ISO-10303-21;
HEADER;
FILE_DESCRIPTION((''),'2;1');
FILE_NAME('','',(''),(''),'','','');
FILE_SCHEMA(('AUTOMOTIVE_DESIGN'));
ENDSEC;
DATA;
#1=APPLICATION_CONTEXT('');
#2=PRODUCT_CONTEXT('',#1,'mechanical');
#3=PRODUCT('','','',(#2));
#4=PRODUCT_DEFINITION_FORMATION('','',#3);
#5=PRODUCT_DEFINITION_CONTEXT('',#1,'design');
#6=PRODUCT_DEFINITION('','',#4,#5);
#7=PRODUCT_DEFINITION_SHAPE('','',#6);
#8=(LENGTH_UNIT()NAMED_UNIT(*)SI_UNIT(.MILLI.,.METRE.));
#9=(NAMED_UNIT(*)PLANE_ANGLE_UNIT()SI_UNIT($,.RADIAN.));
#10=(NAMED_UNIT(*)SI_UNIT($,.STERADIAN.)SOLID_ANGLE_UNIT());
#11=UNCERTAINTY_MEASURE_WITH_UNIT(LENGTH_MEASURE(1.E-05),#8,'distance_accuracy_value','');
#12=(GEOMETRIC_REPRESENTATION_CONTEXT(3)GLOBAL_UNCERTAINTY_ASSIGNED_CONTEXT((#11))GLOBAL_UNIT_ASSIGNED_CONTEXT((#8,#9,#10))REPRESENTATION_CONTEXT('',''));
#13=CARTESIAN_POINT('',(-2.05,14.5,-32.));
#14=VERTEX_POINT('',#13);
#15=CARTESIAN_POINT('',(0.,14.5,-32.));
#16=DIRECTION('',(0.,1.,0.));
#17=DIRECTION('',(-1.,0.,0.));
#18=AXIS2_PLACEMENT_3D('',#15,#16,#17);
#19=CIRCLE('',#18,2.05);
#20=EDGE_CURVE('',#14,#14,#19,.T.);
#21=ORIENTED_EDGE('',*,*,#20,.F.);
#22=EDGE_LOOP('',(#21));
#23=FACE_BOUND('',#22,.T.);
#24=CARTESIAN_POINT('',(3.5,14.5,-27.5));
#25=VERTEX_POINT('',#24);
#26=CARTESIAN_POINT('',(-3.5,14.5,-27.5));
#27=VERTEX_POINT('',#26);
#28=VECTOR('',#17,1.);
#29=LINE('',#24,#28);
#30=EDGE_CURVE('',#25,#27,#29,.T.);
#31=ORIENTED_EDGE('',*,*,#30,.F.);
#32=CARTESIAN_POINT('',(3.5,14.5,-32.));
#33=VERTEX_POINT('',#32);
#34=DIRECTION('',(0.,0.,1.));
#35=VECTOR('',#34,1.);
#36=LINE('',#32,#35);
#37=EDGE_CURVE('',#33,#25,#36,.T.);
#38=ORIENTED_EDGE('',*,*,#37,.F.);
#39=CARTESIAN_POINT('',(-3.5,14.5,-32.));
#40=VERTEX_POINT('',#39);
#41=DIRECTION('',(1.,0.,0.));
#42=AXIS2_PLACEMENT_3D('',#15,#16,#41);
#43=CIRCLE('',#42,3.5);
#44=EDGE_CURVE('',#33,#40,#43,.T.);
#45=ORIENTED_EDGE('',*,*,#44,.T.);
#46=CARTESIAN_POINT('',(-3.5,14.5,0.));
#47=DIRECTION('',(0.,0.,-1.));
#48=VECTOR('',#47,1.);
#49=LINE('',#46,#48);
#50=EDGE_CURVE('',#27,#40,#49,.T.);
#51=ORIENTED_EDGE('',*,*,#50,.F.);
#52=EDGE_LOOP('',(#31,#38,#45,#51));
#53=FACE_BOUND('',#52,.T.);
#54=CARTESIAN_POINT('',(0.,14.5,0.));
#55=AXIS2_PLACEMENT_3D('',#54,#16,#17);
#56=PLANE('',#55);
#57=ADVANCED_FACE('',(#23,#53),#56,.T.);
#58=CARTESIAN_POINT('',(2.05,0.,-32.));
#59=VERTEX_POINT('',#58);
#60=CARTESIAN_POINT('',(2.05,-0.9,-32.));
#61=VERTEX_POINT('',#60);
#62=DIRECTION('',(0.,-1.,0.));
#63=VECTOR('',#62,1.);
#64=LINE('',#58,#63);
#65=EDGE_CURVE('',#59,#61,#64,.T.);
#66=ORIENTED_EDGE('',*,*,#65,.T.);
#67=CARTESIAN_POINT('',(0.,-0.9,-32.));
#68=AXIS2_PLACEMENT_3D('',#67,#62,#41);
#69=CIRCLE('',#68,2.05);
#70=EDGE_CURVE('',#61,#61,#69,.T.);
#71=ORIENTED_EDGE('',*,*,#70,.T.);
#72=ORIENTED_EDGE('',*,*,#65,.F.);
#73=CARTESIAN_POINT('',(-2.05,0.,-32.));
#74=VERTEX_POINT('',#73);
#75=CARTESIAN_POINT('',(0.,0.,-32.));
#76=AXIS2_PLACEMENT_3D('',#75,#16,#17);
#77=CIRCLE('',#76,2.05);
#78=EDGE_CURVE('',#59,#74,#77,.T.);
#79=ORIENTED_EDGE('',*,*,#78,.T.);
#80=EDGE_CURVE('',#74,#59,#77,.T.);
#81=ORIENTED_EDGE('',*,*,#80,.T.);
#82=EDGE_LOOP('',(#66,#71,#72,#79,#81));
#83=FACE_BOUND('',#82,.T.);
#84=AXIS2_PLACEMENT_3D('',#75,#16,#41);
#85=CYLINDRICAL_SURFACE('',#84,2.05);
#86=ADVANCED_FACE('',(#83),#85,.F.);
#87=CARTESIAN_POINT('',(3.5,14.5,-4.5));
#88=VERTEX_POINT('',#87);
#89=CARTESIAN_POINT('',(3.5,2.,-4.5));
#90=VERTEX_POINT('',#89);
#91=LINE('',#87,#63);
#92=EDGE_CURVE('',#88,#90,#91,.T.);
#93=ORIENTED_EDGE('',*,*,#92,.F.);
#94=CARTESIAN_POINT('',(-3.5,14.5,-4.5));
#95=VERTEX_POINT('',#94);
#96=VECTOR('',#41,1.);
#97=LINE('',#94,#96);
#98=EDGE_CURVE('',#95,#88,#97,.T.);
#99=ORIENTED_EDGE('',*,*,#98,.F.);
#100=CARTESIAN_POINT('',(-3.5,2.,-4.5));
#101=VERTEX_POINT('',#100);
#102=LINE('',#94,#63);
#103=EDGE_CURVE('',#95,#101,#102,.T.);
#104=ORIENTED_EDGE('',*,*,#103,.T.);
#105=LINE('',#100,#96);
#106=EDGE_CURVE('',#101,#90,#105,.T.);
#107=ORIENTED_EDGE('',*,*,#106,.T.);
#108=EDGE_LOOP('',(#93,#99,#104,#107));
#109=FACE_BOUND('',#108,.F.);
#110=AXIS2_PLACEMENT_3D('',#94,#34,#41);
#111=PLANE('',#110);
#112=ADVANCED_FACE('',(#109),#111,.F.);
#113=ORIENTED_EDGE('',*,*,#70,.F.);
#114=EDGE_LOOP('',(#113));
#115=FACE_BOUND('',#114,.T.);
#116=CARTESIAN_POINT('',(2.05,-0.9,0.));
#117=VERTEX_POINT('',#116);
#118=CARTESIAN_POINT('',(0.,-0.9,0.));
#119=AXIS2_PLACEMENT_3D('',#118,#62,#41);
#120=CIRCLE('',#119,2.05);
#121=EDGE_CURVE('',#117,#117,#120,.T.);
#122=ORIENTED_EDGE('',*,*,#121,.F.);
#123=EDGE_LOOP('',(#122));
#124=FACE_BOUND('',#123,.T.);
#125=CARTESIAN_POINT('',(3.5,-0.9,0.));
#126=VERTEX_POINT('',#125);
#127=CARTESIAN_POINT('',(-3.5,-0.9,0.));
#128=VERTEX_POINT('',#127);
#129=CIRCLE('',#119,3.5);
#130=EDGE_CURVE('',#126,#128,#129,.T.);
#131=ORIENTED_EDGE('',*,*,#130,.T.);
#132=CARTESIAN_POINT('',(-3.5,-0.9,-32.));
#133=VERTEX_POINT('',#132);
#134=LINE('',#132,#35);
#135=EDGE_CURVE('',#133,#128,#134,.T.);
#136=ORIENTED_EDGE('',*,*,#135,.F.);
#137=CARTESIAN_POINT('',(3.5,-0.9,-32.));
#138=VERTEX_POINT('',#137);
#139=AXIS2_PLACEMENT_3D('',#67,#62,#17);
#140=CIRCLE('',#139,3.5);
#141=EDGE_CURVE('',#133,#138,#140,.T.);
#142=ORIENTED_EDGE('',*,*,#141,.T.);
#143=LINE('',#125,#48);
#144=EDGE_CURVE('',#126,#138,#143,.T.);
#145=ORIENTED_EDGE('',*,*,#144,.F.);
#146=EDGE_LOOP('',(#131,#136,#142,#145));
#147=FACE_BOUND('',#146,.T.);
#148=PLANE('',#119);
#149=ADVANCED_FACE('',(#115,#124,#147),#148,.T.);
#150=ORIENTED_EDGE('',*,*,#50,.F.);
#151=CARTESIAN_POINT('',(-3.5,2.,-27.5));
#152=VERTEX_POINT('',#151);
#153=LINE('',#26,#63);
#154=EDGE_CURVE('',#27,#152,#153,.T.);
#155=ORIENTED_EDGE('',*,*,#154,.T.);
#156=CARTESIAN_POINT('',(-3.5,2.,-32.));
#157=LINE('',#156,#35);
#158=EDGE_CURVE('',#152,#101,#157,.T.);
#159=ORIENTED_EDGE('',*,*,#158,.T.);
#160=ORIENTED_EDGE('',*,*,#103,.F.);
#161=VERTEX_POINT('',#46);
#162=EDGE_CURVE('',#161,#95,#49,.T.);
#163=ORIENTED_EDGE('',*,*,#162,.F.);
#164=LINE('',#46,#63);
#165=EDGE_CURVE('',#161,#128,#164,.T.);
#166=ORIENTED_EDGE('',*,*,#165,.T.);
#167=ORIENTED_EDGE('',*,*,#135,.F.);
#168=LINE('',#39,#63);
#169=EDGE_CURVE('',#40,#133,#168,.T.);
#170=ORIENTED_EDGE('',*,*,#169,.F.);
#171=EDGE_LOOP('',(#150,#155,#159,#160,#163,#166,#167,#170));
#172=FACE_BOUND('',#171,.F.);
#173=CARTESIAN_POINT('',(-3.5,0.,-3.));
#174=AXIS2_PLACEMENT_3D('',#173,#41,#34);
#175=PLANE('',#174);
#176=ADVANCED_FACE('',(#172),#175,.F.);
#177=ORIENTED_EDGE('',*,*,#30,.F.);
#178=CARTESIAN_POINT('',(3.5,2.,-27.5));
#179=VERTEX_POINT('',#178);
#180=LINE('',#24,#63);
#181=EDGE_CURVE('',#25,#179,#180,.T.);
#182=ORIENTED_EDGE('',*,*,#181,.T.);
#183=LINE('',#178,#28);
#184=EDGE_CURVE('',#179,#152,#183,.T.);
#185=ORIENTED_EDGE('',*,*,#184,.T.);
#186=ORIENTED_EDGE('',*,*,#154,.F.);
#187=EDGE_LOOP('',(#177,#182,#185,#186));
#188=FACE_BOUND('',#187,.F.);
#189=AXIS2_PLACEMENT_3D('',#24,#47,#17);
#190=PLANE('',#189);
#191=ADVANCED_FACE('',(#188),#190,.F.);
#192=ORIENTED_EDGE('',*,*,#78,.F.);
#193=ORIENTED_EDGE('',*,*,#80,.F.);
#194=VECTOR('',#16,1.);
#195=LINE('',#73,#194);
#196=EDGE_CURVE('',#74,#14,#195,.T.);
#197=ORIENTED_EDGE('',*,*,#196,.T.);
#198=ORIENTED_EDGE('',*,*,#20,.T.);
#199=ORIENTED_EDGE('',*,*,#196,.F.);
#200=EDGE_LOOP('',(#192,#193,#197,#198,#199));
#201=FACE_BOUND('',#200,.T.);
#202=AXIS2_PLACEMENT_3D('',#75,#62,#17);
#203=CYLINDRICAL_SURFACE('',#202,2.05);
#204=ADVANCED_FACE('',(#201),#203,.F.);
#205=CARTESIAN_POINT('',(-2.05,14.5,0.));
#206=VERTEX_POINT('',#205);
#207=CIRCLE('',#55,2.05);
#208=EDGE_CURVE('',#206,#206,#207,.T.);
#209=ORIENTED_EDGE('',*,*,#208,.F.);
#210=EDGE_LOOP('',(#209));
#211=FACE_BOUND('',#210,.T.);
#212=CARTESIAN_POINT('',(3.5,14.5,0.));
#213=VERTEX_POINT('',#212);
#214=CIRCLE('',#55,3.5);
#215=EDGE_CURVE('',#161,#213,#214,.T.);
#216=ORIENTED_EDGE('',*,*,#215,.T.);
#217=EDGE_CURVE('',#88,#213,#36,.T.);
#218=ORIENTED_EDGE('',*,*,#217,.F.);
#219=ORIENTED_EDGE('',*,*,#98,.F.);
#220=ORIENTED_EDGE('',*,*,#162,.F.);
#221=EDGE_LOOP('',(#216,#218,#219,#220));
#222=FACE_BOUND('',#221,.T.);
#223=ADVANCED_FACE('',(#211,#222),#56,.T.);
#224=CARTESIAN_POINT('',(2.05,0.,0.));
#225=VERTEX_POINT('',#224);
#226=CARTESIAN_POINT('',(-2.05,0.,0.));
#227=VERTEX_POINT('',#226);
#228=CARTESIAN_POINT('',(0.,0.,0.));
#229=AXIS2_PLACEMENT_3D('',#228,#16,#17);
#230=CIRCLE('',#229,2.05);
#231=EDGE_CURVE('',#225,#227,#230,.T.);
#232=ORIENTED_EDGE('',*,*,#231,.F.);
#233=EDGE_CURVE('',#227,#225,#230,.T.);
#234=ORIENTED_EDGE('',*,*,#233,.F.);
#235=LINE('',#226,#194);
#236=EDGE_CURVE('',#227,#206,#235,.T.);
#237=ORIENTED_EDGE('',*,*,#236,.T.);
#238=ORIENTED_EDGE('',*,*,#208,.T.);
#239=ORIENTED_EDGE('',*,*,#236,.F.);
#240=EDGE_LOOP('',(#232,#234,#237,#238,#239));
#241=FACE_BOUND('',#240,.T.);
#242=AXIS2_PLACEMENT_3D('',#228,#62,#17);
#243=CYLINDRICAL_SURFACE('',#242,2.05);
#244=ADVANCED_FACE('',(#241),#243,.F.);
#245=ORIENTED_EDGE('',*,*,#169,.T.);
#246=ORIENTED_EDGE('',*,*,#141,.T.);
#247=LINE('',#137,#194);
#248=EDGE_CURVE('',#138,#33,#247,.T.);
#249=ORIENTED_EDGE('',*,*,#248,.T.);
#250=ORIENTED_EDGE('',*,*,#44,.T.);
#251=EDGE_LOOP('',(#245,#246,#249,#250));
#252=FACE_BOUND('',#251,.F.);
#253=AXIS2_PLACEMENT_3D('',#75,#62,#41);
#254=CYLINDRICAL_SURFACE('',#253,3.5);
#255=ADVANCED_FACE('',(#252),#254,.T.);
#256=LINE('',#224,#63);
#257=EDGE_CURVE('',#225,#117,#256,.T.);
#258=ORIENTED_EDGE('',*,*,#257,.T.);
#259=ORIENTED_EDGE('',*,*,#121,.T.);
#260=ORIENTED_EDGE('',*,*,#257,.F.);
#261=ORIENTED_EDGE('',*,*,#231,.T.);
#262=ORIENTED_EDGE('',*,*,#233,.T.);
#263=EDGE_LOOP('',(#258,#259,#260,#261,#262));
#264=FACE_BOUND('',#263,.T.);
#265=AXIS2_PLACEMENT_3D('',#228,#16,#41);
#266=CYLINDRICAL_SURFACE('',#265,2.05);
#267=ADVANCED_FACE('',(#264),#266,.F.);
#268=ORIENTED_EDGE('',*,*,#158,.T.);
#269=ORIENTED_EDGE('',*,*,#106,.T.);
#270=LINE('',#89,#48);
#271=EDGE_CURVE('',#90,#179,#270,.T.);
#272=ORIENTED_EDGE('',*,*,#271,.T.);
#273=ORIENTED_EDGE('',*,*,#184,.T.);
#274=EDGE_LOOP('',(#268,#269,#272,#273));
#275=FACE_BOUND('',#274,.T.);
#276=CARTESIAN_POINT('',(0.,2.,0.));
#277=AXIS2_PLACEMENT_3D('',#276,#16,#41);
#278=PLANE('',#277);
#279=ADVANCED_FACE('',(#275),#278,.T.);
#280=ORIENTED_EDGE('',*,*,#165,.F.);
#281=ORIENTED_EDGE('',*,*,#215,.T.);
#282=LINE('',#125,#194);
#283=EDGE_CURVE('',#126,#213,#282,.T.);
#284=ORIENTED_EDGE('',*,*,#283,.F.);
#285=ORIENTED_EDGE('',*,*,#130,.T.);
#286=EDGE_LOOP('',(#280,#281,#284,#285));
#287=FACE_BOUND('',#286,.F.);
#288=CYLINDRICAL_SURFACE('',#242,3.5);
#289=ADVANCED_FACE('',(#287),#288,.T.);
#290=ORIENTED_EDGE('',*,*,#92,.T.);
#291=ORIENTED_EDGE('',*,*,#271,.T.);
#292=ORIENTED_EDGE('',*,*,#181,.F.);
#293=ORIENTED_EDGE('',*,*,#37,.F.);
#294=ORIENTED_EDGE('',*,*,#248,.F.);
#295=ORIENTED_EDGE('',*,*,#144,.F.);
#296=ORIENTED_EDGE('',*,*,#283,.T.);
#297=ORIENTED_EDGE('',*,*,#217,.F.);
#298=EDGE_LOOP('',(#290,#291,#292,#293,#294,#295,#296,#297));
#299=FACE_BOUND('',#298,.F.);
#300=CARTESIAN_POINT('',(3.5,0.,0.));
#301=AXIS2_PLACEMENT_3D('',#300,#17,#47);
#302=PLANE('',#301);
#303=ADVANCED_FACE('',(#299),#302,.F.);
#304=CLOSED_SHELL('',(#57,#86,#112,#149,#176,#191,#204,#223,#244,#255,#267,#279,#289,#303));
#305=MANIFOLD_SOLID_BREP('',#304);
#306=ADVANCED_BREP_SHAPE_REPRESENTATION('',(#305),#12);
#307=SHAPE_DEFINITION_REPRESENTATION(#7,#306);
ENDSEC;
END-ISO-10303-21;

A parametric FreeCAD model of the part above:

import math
import FreeCAD as App
import Part
import Sketcher
from FreeCAD import Vector


def add_polygon(sketch, points):
    """Adds a closed chain of lines whose ends are joined by coincident constraints."""
    first, n = sketch.GeometryCount, len(points)
    for a, b in zip(points, points[1:] + points[:1]):
        sketch.addGeometry(Part.LineSegment(App.Vector(*a, 0), App.Vector(*b, 0)), False)
    for i in range(n):
        sketch.addConstraint(Sketcher.Constraint("Coincident", first + i, 2, first + (i + 1) % n, 1))

doc = App.newDocument("Part")
params = doc.addObject("Spreadsheet::Sheet", "Params")
for row, (alias, value) in enumerate([
    ("sketch1_diameter", "4.1 mm"),
    ("sketch1_radius", "3.5 mm"),
    ("sketch1_height", "32 mm"),
    ("pad1_length", "14.5 mm"),
    ("sketch2_width", "7 mm"),
    ("sketch2_height", "23 mm"),
    ("pocket1_length", "12.5 mm"),
    ("sketch3_diameter", "4.1 mm"),
    ("sketch3_radius", "3.5 mm"),
    ("sketch3_height", "32 mm"),
    ("pad2_length", "0.9 mm"),
], start=1):
    params.set(f"A{row}", alias)
    params.set(f"B{row}", "=" + value)
    params.setAlias(f"B{row}", alias)

body = doc.addObject("PartDesign::Body", "Body")

# Sketch on XZ plane
sketch1 = body.newObject("Sketcher::SketchObject", "Sketch")
sketch1.AttachmentSupport = (doc.getObject("XZ_Plane"), [""])
sketch1.MapMode = "FlatFace"
sketch1.addGeometry(Part.ArcOfCircle(Part.Circle(Vector(0, 0, 0), Vector(0, 0, 1), 3.5), math.radians(0), math.radians(180)), False)
sketch1.addGeometry(Part.LineSegment(Vector(3.5, 0, 0), Vector(3.5, -32, 0)), False)
sketch1.addGeometry(Part.ArcOfCircle(Part.Circle(Vector(0, -32, 0), Vector(0, 0, 1), 3.5), math.radians(180), math.radians(360)), False)
sketch1.addGeometry(Part.LineSegment(Vector(-3.5, -32, 0), Vector(-3.5, 0, 0)), False)
sketch1.addGeometry(Part.Circle(Vector(0, 0, 0), Vector(0, 0, 1), 2.05), False)
sketch1.addGeometry(Part.Circle(Vector(0, -32, 0), Vector(0, 0, 1), 2.05), False)
sketch1.addConstraint(Sketcher.Constraint("Tangent", 0, 1, 1, 1))
sketch1.addConstraint(Sketcher.Constraint("Tangent", 1, 2, 2, 2))
sketch1.addConstraint(Sketcher.Constraint("Tangent", 2, 1, 3, 1))
sketch1.addConstraint(Sketcher.Constraint("Tangent", 3, 2, 0, 2))
sketch1.addConstraint(Sketcher.Constraint("Vertical", 1))
sketch1.addConstraint(Sketcher.Constraint("Vertical", 3))
sketch1.addConstraint(Sketcher.Constraint("Coincident", 0, 3, -1, 1))
sketch1.addConstraint(Sketcher.Constraint("Coincident", 4, 3, -1, 1))
sketch1.addConstraint(Sketcher.Constraint("Coincident", 5, 3, 2, 3))
sketch1.addConstraint(Sketcher.Constraint("Equal", 4, 5))
sketch1.addConstraint(Sketcher.Constraint("Diameter", 4, 4.1))
sketch1.addConstraint(Sketcher.Constraint("Radius", 0, 3.5))
sketch1.addConstraint(Sketcher.Constraint("DistanceY", 1, 2, 1, 1, 32.0))
sketch1.setExpression("Constraints[10]", "Params.sketch1_diameter")
sketch1.setExpression("Constraints[11]", "Params.sketch1_radius")
sketch1.setExpression("Constraints[12]", "Params.sketch1_height")
pad1 = body.newObject("PartDesign::Pad", "Pad")
pad1.Profile = sketch1
pad1.setExpression("Length", "Params.pad1_length")
pad1.Reversed = True

# Sketch on XZ plane
sketch2 = body.newObject("Sketcher::SketchObject", "Sketch001")
sketch2.AttachmentSupport = (doc.getObject("XZ_Plane"), [""])
sketch2.MapMode = "FlatFace"
sketch2.AttachmentOffset = App.Placement(Vector(0, 0, -14.5), App.Rotation())
add_polygon(sketch2, [(3.5, -27.5), (-3.5, -27.5), (-3.5, -4.5), (3.5, -4.5)])  # lines 0-3
sketch2.addConstraint(Sketcher.Constraint("Horizontal", 0))
sketch2.addConstraint(Sketcher.Constraint("Vertical", 1))
sketch2.addConstraint(Sketcher.Constraint("Horizontal", 2))
sketch2.addConstraint(Sketcher.Constraint("Vertical", 3))
sketch2.addConstraint(Sketcher.Constraint("DistanceX", 0, 2, 0, 1, 7.0))
sketch2.addConstraint(Sketcher.Constraint("DistanceY", 1, 1, 1, 2, 23.0))
sketch2.addConstraint(Sketcher.Constraint("DistanceX", 0, 2, -1, 1, 3.5))
sketch2.addConstraint(Sketcher.Constraint("DistanceY", 0, 2, -1, 1, 27.5))
sketch2.setExpression("Constraints[8]", "Params.sketch2_width")
sketch2.setExpression("Constraints[9]", "Params.sketch2_height")
pocket1 = body.newObject("PartDesign::Pocket", "Pocket")
pocket1.Profile = sketch2
pocket1.setExpression("Length", "Params.pocket1_length")
pocket1.Reversed = True

# Sketch on XZ plane
sketch3 = body.newObject("Sketcher::SketchObject", "Sketch002")
sketch3.AttachmentSupport = (doc.getObject("XZ_Plane"), [""])
sketch3.MapMode = "FlatFace"
sketch3.addGeometry(Part.ArcOfCircle(Part.Circle(Vector(0, 0, 0), Vector(0, 0, 1), 3.5), math.radians(0), math.radians(180)), False)
sketch3.addGeometry(Part.LineSegment(Vector(-3.5, 0, 0), Vector(-3.5, -32, 0)), False)
sketch3.addGeometry(Part.ArcOfCircle(Part.Circle(Vector(0, -32, 0), Vector(0, 0, 1), 3.5), math.radians(180), math.radians(360)), False)
sketch3.addGeometry(Part.LineSegment(Vector(3.5, -32, 0), Vector(3.5, 0, 0)), False)
sketch3.addGeometry(Part.Circle(Vector(0, 0, 0), Vector(0, 0, 1), 2.05), False)
sketch3.addGeometry(Part.Circle(Vector(0, -32, 0), Vector(0, 0, 1), 2.05), False)
sketch3.addConstraint(Sketcher.Constraint("Tangent", 0, 2, 1, 1))
sketch3.addConstraint(Sketcher.Constraint("Tangent", 1, 2, 2, 1))
sketch3.addConstraint(Sketcher.Constraint("Tangent", 2, 2, 3, 1))
sketch3.addConstraint(Sketcher.Constraint("Tangent", 3, 2, 0, 1))
sketch3.addConstraint(Sketcher.Constraint("Vertical", 1))
sketch3.addConstraint(Sketcher.Constraint("Vertical", 3))
sketch3.addConstraint(Sketcher.Constraint("Coincident", 0, 3, -1, 1))
sketch3.addConstraint(Sketcher.Constraint("Coincident", 4, 3, -1, 1))
sketch3.addConstraint(Sketcher.Constraint("Coincident", 5, 3, 2, 3))
sketch3.addConstraint(Sketcher.Constraint("Equal", 4, 5))
sketch3.addConstraint(Sketcher.Constraint("Diameter", 4, 4.1))
sketch3.addConstraint(Sketcher.Constraint("Radius", 0, 3.5))
sketch3.addConstraint(Sketcher.Constraint("DistanceY", 1, 2, 1, 1, 32.0))
sketch3.setExpression("Constraints[10]", "Params.sketch3_diameter")
sketch3.setExpression("Constraints[11]", "Params.sketch3_radius")
sketch3.setExpression("Constraints[12]", "Params.sketch3_height")
pad2 = body.newObject("PartDesign::Pad", "Pad001")
pad2.Profile = sketch3
pad2.setExpression("Length", "Params.pad2_length")

doc.recompute()
